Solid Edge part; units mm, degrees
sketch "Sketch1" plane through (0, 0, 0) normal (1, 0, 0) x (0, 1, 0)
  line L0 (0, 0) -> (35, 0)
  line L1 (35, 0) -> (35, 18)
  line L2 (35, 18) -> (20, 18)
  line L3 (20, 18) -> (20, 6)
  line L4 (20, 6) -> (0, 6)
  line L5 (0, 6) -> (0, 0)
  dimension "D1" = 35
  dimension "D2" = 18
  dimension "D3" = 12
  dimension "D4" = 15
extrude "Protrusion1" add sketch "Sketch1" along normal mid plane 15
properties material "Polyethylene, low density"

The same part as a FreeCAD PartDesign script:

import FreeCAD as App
import Part
import Sketcher

V = App.Vector
Q = App.Units.Quantity


def add_polygon(sketch, points):
    """Adds a closed chain of lines whose ends are joined by coincident constraints."""
    first, n = sketch.GeometryCount, len(points)
    for a, b in zip(points, points[1:] + points[:1]):
        sketch.addGeometry(Part.LineSegment(App.Vector(*a, 0), App.Vector(*b, 0)), False)
    for i in range(n):
        sketch.addConstraint(Sketcher.Constraint("Coincident", first + i, 2, first + (i + 1) % n, 1))

doc = App.newDocument("Part")
params = doc.addObject("Spreadsheet::Sheet", "Params")
for row, (alias, value) in enumerate([
    ("sketch1_width", "35 mm"),
    ("sketch1_width2", "20 mm"),
    ("sketch1_height", "6 mm"),
    ("sketch1_height2", "18 mm"),
    ("pad1_length", "15 mm"),
], start=1):
    params.set(f"A{row}", alias)
    params.set(f"B{row}", "=" + value)
    params.setAlias(f"B{row}", alias)

body = doc.addObject("PartDesign::Body", "Body")

# Sketch on YZ plane
sketch1 = doc.addObject("Sketcher::SketchObject", "Sketch")
body.addObject(sketch1)
sketch1.AttachmentSupport = (doc.YZ_Plane, [""])
sketch1.MapMode = "FlatFace"
add_polygon(sketch1, [(0, 6), (0, 0), (35, 0), (35, 18), (20, 18), (20, 6)])  # lines 0-5
sketch1.addConstraint([
    Sketcher.Constraint("Vertical", 0),
    Sketcher.Constraint("Horizontal", 1),
    Sketcher.Constraint("Vertical", 2),
    Sketcher.Constraint("Horizontal", 3),
    Sketcher.Constraint("Vertical", 4),
    Sketcher.Constraint("Horizontal", 5),
    Sketcher.Constraint("Coincident", 0, 2, -1, 1),
    Sketcher.Constraint("DistanceX", 1, 1, 1, 2, Q("35 mm")),
    Sketcher.Constraint("DistanceX", 5, 2, 5, 1, Q("20 mm")),
    Sketcher.Constraint("DistanceY", 0, 2, 0, 1, Q("6 mm")),
    Sketcher.Constraint("DistanceY", 2, 1, 2, 2, Q("18 mm")),
])
sketch1.setExpression("Constraints[13]", "Params.sketch1_width")
sketch1.setExpression("Constraints[14]", "Params.sketch1_width2")
sketch1.setExpression("Constraints[15]", "Params.sketch1_height")
sketch1.setExpression("Constraints[16]", "Params.sketch1_height2")
pad1 = doc.addObject("PartDesign::Pad", "Pad")
body.addObject(pad1)
pad1.Profile = sketch1
pad1.setExpression("Length", "Params.pad1_length")
pad1.Midplane = True

doc.recompute()
